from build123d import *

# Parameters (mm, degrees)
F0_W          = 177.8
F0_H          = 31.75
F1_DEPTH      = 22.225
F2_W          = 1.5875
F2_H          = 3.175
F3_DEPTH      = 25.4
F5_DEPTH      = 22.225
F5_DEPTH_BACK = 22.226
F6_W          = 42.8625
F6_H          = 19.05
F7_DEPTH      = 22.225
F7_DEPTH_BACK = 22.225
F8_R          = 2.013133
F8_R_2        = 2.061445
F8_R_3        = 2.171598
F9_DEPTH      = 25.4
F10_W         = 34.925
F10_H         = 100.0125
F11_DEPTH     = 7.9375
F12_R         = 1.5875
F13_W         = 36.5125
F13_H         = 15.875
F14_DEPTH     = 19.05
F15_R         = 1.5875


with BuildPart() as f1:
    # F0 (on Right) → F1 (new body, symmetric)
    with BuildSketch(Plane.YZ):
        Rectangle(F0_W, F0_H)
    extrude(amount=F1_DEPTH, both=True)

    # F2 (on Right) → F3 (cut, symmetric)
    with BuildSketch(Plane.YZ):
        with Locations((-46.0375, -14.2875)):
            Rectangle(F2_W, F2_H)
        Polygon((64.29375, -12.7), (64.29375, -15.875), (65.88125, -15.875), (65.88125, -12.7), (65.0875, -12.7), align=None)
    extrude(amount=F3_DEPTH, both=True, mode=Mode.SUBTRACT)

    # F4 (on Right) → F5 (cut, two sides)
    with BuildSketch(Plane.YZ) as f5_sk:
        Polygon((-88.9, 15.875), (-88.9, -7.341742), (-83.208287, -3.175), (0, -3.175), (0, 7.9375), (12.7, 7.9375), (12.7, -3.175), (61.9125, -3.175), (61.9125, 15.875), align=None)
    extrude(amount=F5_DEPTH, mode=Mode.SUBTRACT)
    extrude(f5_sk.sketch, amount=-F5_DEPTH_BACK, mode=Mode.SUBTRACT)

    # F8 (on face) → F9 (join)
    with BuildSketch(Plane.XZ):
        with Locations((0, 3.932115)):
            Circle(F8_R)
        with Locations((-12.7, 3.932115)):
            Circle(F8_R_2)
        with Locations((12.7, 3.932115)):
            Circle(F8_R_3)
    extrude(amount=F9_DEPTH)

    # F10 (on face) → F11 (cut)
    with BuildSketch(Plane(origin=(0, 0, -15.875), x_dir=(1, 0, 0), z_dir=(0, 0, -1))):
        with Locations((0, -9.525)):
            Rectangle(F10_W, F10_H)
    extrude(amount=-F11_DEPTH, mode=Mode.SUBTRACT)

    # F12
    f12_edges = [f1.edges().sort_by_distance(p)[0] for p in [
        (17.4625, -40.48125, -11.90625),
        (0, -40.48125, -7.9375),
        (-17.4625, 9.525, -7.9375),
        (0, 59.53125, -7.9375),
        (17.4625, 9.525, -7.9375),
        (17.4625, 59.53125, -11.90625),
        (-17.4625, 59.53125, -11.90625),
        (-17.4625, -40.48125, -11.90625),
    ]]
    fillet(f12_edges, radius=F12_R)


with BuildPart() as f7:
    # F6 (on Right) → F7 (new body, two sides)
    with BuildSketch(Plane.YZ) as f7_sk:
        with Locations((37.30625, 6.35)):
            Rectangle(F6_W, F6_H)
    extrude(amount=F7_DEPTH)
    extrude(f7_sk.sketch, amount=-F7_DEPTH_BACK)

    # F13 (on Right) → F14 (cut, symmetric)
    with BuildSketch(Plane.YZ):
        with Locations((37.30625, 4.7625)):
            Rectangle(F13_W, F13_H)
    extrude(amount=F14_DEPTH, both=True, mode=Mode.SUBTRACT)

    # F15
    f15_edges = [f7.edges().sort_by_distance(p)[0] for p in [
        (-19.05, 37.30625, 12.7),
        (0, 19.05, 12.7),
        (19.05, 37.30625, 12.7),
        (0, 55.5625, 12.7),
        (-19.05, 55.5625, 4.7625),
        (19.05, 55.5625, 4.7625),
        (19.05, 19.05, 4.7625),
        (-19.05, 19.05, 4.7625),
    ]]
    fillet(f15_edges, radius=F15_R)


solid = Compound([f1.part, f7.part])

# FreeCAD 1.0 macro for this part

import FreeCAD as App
import Part
import Sketcher

V = App.Vector
Q = App.Units.Quantity


def edges_at(feature, points):
    """Names of the edges that pass closest to the given points."""
    edges = feature.Shape.Edges
    near = lambda p: min(range(len(edges)), key=lambda i: edges[i].distToShape(Part.Vertex(*p))[0])
    return sorted({f"Edge{near(p) + 1}" for p in points})

doc = App.newDocument("Part")
body = doc.addObject("PartDesign::Body", "Body")

# Sketch on YZ plane
sketch1 = doc.addObject("Sketcher::SketchObject", "Sketch")
body.addObject(sketch1)
sketch1.AttachmentSupport = (doc.YZ_Plane, [""])
sketch1.MapMode = "FlatFace"
sketch1.addGeometry(Part.LineSegment(V(-89, 16, 0), V(-89, -16, 0)), False)
sketch1.addGeometry(Part.LineSegment(V(-89, -16, 0), V(89, -16, 0)), False)
sketch1.addGeometry(Part.LineSegment(V(89, -16, 0), V(89, 16, 0)), False)
sketch1.addGeometry(Part.LineSegment(V(89, 16, 0), V(-89, 16, 0)), False)
sketch1.addConstraint(Sketcher.Constraint("Coincident", 0, 2, 1, 1))
sketch1.addConstraint(Sketcher.Constraint("Coincident", 1, 2, 2, 1))
sketch1.addConstraint(Sketcher.Constraint("Coincident", 2, 2, 3, 1))
sketch1.addConstraint(Sketcher.Constraint("Coincident", 3, 2, 0, 1))
sketch1.addConstraint(Sketcher.Constraint("Vertical", 0))
sketch1.addConstraint(Sketcher.Constraint("Horizontal", 1))
sketch1.addConstraint(Sketcher.Constraint("Vertical", 2))
sketch1.addConstraint(Sketcher.Constraint("Horizontal", 3))
sketch1.addConstraint(Sketcher.Constraint("Symmetric", 0, 2, 2, 2, -1, 1))
sketch1.addConstraint(Sketcher.Constraint("DistanceX", 1, 1, 1, 2, Q("7 in")))
sketch1.addConstraint(Sketcher.Constraint("DistanceY", 0, 2, 0, 1, Q("1.25 in")))
pad1 = doc.addObject("PartDesign::Pad", "Pad")
body.addObject(pad1)
pad1.Profile = sketch1
pad1.Length = Q("1.75 in")
pad1.Midplane = True

# Sketch on YZ plane
sketch2 = doc.addObject("Sketcher::SketchObject", "Sketch001")
body.addObject(sketch2)
sketch2.AttachmentSupport = (doc.YZ_Plane, [""])
sketch2.MapMode = "FlatFace"
sketch2.addGeometry(Part.LineSegment(V(-46.8, -12.7, 0), V(-46.8, -15.9, 0)), False)
sketch2.addGeometry(Part.LineSegment(V(-46.8, -15.9, 0), V(-45.2, -15.9, 0)), False)
sketch2.addGeometry(Part.LineSegment(V(-45.2, -15.9, 0), V(-45.2, -12.7, 0)), False)
sketch2.addGeometry(Part.LineSegment(V(-45.2, -12.7, 0), V(-46.8, -12.7, 0)), False)
sketch2.addGeometry(Part.LineSegment(V(64.3, -12.7, 0), V(64.3, -15.9, 0)), False)
sketch2.addGeometry(Part.LineSegment(V(64.3, -15.9, 0), V(65.9, -15.9, 0)), False)
sketch2.addGeometry(Part.LineSegment(V(65.9, -15.9, 0), V(65.9, -12.7, 0)), False)
sketch2.addGeometry(Part.LineSegment(V(65.9, -12.7, 0), V(64.3, -12.7, 0)), False)
sketch2.addConstraint(Sketcher.Constraint("Coincident", 0, 2, 1, 1))
sketch2.addConstraint(Sketcher.Constraint("Coincident", 1, 2, 2, 1))
sketch2.addConstraint(Sketcher.Constraint("Coincident", 2, 2, 3, 1))
sketch2.addConstraint(Sketcher.Constraint("Coincident", 3, 2, 0, 1))
sketch2.addConstraint(Sketcher.Constraint("Coincident", 4, 2, 5, 1))
sketch2.addConstraint(Sketcher.Constraint("Coincident", 5, 2, 6, 1))
sketch2.addConstraint(Sketcher.Constraint("Coincident", 6, 2, 7, 1))
sketch2.addConstraint(Sketcher.Constraint("Coincident", 7, 2, 4, 1))
sketch2.addConstraint(Sketcher.Constraint("Vertical", 0))
sketch2.addConstraint(Sketcher.Constraint("Horizontal", 1))
sketch2.addConstraint(Sketcher.Constraint("Vertical", 2))
sketch2.addConstraint(Sketcher.Constraint("Horizontal", 3))
sketch2.addConstraint(Sketcher.Constraint("Vertical", 4))
sketch2.addConstraint(Sketcher.Constraint("Horizontal", 5))
sketch2.addConstraint(Sketcher.Constraint("Vertical", 6))
sketch2.addConstraint(Sketcher.Constraint("Horizontal", 7))
sketch2.addConstraint(Sketcher.Constraint("Horizontal", 1, 2, 4, 2))
sketch2.addConstraint(Sketcher.Constraint("Horizontal", 3, 2, 6, 2))
sketch2.addConstraint(Sketcher.Constraint("Equal", 3, 5))
sketch2.addConstraint(Sketcher.Constraint("DistanceY", 2, 2, -1, 1, Q("0.5 in")))
sketch2.addConstraint(Sketcher.Constraint("DistanceX", 1, 1, 1, 2, Q("0.0625 in")))
sketch2.addConstraint(Sketcher.Constraint("DistanceY", 0, 2, 0, 1, Q("0.125 in")))
sketch2.addConstraint(Sketcher.Constraint("DistanceX", 0, 2, -1, 1, Q("1.84375 in")))
sketch2.addConstraint(Sketcher.Constraint("DistanceX", -1, 1, 4, 2, Q("2.53125 in")))
pocket1 = doc.addObject("PartDesign::Pocket", "Pocket")
body.addObject(pocket1)
pocket1.Profile = sketch2
pocket1.Length = Q("2 in")
pocket1.Midplane = True

# Sketch on YZ plane
sketch3 = doc.addObject("Sketcher::SketchObject", "Sketch002")
body.addObject(sketch3)
sketch3.AttachmentSupport = (doc.YZ_Plane, [""])
sketch3.MapMode = "FlatFace"
sketch3.addGeometry(Part.LineSegment(V(-89, 16, 0), V(-89, -7, 0)), False)
sketch3.addGeometry(Part.LineSegment(V(-89, -7, 0), V(-83, -3, 0)), False)
sketch3.addGeometry(Part.LineSegment(V(-83, -3, 0), V(0, -3, 0)), False)
sketch3.addGeometry(Part.LineSegment(V(0, -3, 0), V(0, 8, 0)), False)
sketch3.addGeometry(Part.LineSegment(V(0, 8, 0), V(13, 8, 0)), False)
sketch3.addGeometry(Part.LineSegment(V(13, 8, 0), V(13, -3, 0)), False)
sketch3.addGeometry(Part.LineSegment(V(13, -3, 0), V(62, -3, 0)), False)
sketch3.addGeometry(Part.LineSegment(V(62, -3, 0), V(62, 16, 0)), False)
sketch3.addGeometry(Part.LineSegment(V(62, 16, 0), V(-89, 16, 0)), False)
sketch3.addConstraint(Sketcher.Constraint("Coincident", 0, 2, 1, 1))
sketch3.addConstraint(Sketcher.Constraint("Coincident", 1, 2, 2, 1))
sketch3.addConstraint(Sketcher.Constraint("Coincident", 2, 2, 3, 1))
sketch3.addConstraint(Sketcher.Constraint("Coincident", 3, 2, 4, 1))
sketch3.addConstraint(Sketcher.Constraint("Coincident", 4, 2, 5, 1))
sketch3.addConstraint(Sketcher.Constraint("Coincident", 5, 2, 6, 1))
sketch3.addConstraint(Sketcher.Constraint("Coincident", 6, 2, 7, 1))
sketch3.addConstraint(Sketcher.Constraint("Coincident", 7, 2, 8, 1))
sketch3.addConstraint(Sketcher.Constraint("Coincident", 8, 2, 0, 1))
sketch3.addConstraint(Sketcher.Constraint("Vertical", 0))
sketch3.addConstraint(Sketcher.Constraint("Horizontal", 2))
sketch3.addConstraint(Sketcher.Constraint("Vertical", 3))
sketch3.addConstraint(Sketcher.Constraint("Horizontal", 4))
sketch3.addConstraint(Sketcher.Constraint("Vertical", 5))
sketch3.addConstraint(Sketcher.Constraint("Horizontal", 6))
sketch3.addConstraint(Sketcher.Constraint("Vertical", 7))
sketch3.addConstraint(Sketcher.Constraint("Horizontal", 8))
sketch3.addConstraint(Sketcher.Constraint("PointOnObject", 2, 2, -2))
sketch3.addConstraint(Sketcher.Constraint("Horizontal", 2, 2, 5, 2))
sketch3.addConstraint(Sketcher.Constraint("DistanceX", 4, 1, 4, 2, Q("0.5 in")))
sketch3.addConstraint(Sketcher.Constraint("DistanceX", 0, 2, 4, 2, Q("4 in")))
sketch3.addConstraint(Sketcher.Constraint("DistanceY", 7, 1, 7, 2, Q("0.75 in")))
sketch3.addConstraint(Sketcher.Constraint("DistanceX", 6, 1, 6, 2, Q("1.9375 in")))
sketch3.addConstraint(Sketcher.Constraint("DistanceY", 3, 1, 3, 2, Q("0.4375 in")))
sketch3.addConstraint(Sketcher.Constraint("DistanceY", 1, 2, -1, 1, Q("0.125 in")))
sketch3.addConstraint(Sketcher.Constraint("DistanceY", 0, 2, 0, 1, Q("23.216742 mm")))
sketch3.addConstraint(Sketcher.Constraint("DistanceX", 2, 1, 2, 2, Q("83.208287 mm")))
pocket2 = doc.addObject("PartDesign::Pocket", "Pocket001")
body.addObject(pocket2)
pocket2.Profile = sketch3
pocket2.Type = "ThroughAll"
pocket2.Midplane = True

# Sketch on XZ plane
sketch4 = doc.addObject("Sketcher::SketchObject", "Sketch003")
body.addObject(sketch4)
sketch4.AttachmentSupport = (doc.XZ_Plane, [""])
sketch4.MapMode = "FlatFace"
sketch4.addGeometry(Part.Circle(V(0, 3.9, 0), V(0, 0, 1), 2), False)
sketch4.addGeometry(Part.Circle(V(-12.7, 3.9, 0), V(0, 0, 1), 2.1), False)
sketch4.addGeometry(Part.Circle(V(12.7, 3.9, 0), V(0, 0, 1), 2.2), False)
sketch4.addConstraint(Sketcher.Constraint("Symmetric", 1, 3, 2, 3, -2))
sketch4.addConstraint(Sketcher.Constraint("PointOnObject", 0, 3, -2))
sketch4.addConstraint(Sketcher.Constraint("Horizontal", 0, 3, 1, 3))
sketch4.addConstraint(Sketcher.Constraint("DistanceX", 1, 3, 2, 3, Q("1 in")))
sketch4.addConstraint(Sketcher.Constraint("Diameter", 1, Q("4.12289 mm")))
sketch4.addConstraint(Sketcher.Constraint("Diameter", 0, Q("4.026266 mm")))
sketch4.addConstraint(Sketcher.Constraint("Diameter", 2, Q("4.343196 mm")))
sketch4.addConstraint(Sketcher.Constraint("DistanceY", -1, 1, 0, 3, Q("3.932115 mm")))
pad2 = doc.addObject("PartDesign::Pad", "Pad001")
body.addObject(pad2)
pad2.Profile = sketch4
pad2.Length = Q("1 in")

# Sketch on XY plane
sketch5 = doc.addObject("Sketcher::SketchObject", "Sketch004")
body.addObject(sketch5)
sketch5.AttachmentSupport = (doc.XY_Plane, [""])
sketch5.MapMode = "FlatFace"
sketch5.AttachmentOffset = App.Placement(V(0, 0, -0.625 * 25.4), App.Rotation())
sketch5.addGeometry(Part.LineSegment(V(-17, -40, 0), V(-17, 60, 0)), False)
sketch5.addGeometry(Part.LineSegment(V(-17, 60, 0), V(17, 60, 0)), False)
sketch5.addGeometry(Part.LineSegment(V(17, 60, 0), V(17, -40, 0)), False)
sketch5.addGeometry(Part.LineSegment(V(17, -40, 0), V(-17, -40, 0)), False)
sketch5.addConstraint(Sketcher.Constraint("Coincident", 0, 2, 1, 1))
sketch5.addConstraint(Sketcher.Constraint("Coincident", 1, 2, 2, 1))
sketch5.addConstraint(Sketcher.Constraint("Coincident", 2, 2, 3, 1))
sketch5.addConstraint(Sketcher.Constraint("Coincident", 3, 2, 0, 1))
sketch5.addConstraint(Sketcher.Constraint("Vertical", 0))
sketch5.addConstraint(Sketcher.Constraint("Horizontal", 1))
sketch5.addConstraint(Sketcher.Constraint("Vertical", 2))
sketch5.addConstraint(Sketcher.Constraint("Horizontal", 3))
sketch5.addConstraint(Sketcher.Constraint("DistanceX", 1, 1, 1, 2, Q("1.375 in")))
sketch5.addConstraint(Sketcher.Constraint("DistanceY", 0, 1, 0, 2, Q("3.9375 in")))
sketch5.addConstraint(Sketcher.Constraint("DistanceX", 0, 2, -1, 1, Q("0.6875 in")))
sketch5.addConstraint(Sketcher.Constraint("DistanceY", -1, 1, 0, 2, Q("2.34375 in")))
pocket3 = doc.addObject("PartDesign::Pocket", "Pocket002")
body.addObject(pocket3)
pocket3.Profile = sketch5
pocket3.Length = Q("0.3125 in")
pocket3.Reversed = True
doc.recompute()

fillet = doc.addObject("PartDesign::Fillet", "Fillet")
body.addObject(fillet)
fillet.Base = (pocket3, edges_at(pocket3, [
    (17.462, -40.481, -11.906),
    (0, -40.481, -7.938),
    (-17.462, 9.525, -7.938),
    (0, 59.531, -7.938),
    (17.462, 9.525, -7.938),
    (17.462, 59.531, -11.906),
    (-17.462, 59.531, -11.906),
    (-17.462, -40.481, -11.906),
]))
fillet.Radius = Q("0.0625 in")
body2 = doc.addObject("PartDesign::Body", "Body001")

# Sketch on YZ plane
sketch6 = doc.addObject("Sketcher::SketchObject", "Sketch005")
body2.addObject(sketch6)
sketch6.AttachmentSupport = (doc.getObject("YZ_Plane001"), [""])
sketch6.MapMode = "FlatFace"
sketch6.addGeometry(Part.LineSegment(V(16, 16, 0), V(16, -3, 0)), False)
sketch6.addGeometry(Part.LineSegment(V(16, -3, 0), V(59, -3, 0)), False)
sketch6.addGeometry(Part.LineSegment(V(59, -3, 0), V(59, 16, 0)), False)
sketch6.addGeometry(Part.LineSegment(V(59, 16, 0), V(16, 16, 0)), False)
sketch6.addConstraint(Sketcher.Constraint("Coincident", 0, 2, 1, 1))
sketch6.addConstraint(Sketcher.Constraint("Coincident", 1, 2, 2, 1))
sketch6.addConstraint(Sketcher.Constraint("Coincident", 2, 2, 3, 1))
sketch6.addConstraint(Sketcher.Constraint("Coincident", 3, 2, 0, 1))
sketch6.addConstraint(Sketcher.Constraint("Vertical", 0))
sketch6.addConstraint(Sketcher.Constraint("Horizontal", 1))
sketch6.addConstraint(Sketcher.Constraint("Vertical", 2))
sketch6.addConstraint(Sketcher.Constraint("Horizontal", 3))
sketch6.addConstraint(Sketcher.Constraint("DistanceY", 0, 2, 0, 1, Q("0.75 in")))
sketch6.addConstraint(Sketcher.Constraint("DistanceX", 1, 1, 1, 2, Q("1.6875 in")))
sketch6.addConstraint(Sketcher.Constraint("DistanceX", -1, 1, 0, 2, Q("0.625 in")))
sketch6.addConstraint(Sketcher.Constraint("DistanceY", 0, 2, -1, 1, Q("0.125 in")))
pad3 = doc.addObject("PartDesign::Pad", "Pad002")
body2.addObject(pad3)
pad3.Profile = sketch6
pad3.Type = "TwoLengths"
pad3.Length = Q("0.875 in")
pad3.Length2 = Q("0.875 in")

# Sketch on YZ plane
sketch7 = doc.addObject("Sketcher::SketchObject", "Sketch006")
body2.addObject(sketch7)
sketch7.AttachmentSupport = (doc.getObject("YZ_Plane001"), [""])
sketch7.MapMode = "FlatFace"
sketch7.addGeometry(Part.LineSegment(V(19, 13, 0), V(19, -3, 0)), False)
sketch7.addGeometry(Part.LineSegment(V(19, -3, 0), V(56, -3, 0)), False)
sketch7.addGeometry(Part.LineSegment(V(56, -3, 0), V(56, 13, 0)), False)
sketch7.addGeometry(Part.LineSegment(V(56, 13, 0), V(19, 13, 0)), False)
sketch7.addConstraint(Sketcher.Constraint("Coincident", 0, 2, 1, 1))
sketch7.addConstraint(Sketcher.Constraint("Coincident", 1, 2, 2, 1))
sketch7.addConstraint(Sketcher.Constraint("Coincident", 2, 2, 3, 1))
sketch7.addConstraint(Sketcher.Constraint("Coincident", 3, 2, 0, 1))
sketch7.addConstraint(Sketcher.Constraint("Vertical", 0))
sketch7.addConstraint(Sketcher.Constraint("Horizontal", 1))
sketch7.addConstraint(Sketcher.Constraint("Vertical", 2))
sketch7.addConstraint(Sketcher.Constraint("Horizontal", 3))
sketch7.addConstraint(Sketcher.Constraint("DistanceY", -1, 1, 2, 2, Q("0.5 in")))
sketch7.addConstraint(Sketcher.Constraint("DistanceX", 1, 1, 1, 2, Q("1.4375 in")))
sketch7.addConstraint(Sketcher.Constraint("DistanceY", 0, 2, 0, 1, Q("0.625 in")))
sketch7.addConstraint(Sketcher.Constraint("DistanceX", -1, 1, 0, 2, Q("0.75 in")))
pocket4 = doc.addObject("PartDesign::Pocket", "Pocket003")
body2.addObject(pocket4)
pocket4.Profile = sketch7
pocket4.Length = Q("1.5 in")
pocket4.Midplane = True
doc.recompute()

fillet2 = doc.addObject("PartDesign::Fillet", "Fillet001")
body2.addObject(fillet2)
fillet2.Base = (pocket4, edges_at(pocket4, [
    (-19.05, 37.306, 12.7),
    (0, 19.05, 12.7),
    (19.05, 37.306, 12.7),
    (0, 55.562, 12.7),
    (-19.05, 55.562, 4.763),
    (19.05, 55.562, 4.763),
    (19.05, 19.05, 4.763),
    (-19.05, 19.05, 4.763),
]))
fillet2.Radius = Q("0.0625 in")

doc.recompute()
